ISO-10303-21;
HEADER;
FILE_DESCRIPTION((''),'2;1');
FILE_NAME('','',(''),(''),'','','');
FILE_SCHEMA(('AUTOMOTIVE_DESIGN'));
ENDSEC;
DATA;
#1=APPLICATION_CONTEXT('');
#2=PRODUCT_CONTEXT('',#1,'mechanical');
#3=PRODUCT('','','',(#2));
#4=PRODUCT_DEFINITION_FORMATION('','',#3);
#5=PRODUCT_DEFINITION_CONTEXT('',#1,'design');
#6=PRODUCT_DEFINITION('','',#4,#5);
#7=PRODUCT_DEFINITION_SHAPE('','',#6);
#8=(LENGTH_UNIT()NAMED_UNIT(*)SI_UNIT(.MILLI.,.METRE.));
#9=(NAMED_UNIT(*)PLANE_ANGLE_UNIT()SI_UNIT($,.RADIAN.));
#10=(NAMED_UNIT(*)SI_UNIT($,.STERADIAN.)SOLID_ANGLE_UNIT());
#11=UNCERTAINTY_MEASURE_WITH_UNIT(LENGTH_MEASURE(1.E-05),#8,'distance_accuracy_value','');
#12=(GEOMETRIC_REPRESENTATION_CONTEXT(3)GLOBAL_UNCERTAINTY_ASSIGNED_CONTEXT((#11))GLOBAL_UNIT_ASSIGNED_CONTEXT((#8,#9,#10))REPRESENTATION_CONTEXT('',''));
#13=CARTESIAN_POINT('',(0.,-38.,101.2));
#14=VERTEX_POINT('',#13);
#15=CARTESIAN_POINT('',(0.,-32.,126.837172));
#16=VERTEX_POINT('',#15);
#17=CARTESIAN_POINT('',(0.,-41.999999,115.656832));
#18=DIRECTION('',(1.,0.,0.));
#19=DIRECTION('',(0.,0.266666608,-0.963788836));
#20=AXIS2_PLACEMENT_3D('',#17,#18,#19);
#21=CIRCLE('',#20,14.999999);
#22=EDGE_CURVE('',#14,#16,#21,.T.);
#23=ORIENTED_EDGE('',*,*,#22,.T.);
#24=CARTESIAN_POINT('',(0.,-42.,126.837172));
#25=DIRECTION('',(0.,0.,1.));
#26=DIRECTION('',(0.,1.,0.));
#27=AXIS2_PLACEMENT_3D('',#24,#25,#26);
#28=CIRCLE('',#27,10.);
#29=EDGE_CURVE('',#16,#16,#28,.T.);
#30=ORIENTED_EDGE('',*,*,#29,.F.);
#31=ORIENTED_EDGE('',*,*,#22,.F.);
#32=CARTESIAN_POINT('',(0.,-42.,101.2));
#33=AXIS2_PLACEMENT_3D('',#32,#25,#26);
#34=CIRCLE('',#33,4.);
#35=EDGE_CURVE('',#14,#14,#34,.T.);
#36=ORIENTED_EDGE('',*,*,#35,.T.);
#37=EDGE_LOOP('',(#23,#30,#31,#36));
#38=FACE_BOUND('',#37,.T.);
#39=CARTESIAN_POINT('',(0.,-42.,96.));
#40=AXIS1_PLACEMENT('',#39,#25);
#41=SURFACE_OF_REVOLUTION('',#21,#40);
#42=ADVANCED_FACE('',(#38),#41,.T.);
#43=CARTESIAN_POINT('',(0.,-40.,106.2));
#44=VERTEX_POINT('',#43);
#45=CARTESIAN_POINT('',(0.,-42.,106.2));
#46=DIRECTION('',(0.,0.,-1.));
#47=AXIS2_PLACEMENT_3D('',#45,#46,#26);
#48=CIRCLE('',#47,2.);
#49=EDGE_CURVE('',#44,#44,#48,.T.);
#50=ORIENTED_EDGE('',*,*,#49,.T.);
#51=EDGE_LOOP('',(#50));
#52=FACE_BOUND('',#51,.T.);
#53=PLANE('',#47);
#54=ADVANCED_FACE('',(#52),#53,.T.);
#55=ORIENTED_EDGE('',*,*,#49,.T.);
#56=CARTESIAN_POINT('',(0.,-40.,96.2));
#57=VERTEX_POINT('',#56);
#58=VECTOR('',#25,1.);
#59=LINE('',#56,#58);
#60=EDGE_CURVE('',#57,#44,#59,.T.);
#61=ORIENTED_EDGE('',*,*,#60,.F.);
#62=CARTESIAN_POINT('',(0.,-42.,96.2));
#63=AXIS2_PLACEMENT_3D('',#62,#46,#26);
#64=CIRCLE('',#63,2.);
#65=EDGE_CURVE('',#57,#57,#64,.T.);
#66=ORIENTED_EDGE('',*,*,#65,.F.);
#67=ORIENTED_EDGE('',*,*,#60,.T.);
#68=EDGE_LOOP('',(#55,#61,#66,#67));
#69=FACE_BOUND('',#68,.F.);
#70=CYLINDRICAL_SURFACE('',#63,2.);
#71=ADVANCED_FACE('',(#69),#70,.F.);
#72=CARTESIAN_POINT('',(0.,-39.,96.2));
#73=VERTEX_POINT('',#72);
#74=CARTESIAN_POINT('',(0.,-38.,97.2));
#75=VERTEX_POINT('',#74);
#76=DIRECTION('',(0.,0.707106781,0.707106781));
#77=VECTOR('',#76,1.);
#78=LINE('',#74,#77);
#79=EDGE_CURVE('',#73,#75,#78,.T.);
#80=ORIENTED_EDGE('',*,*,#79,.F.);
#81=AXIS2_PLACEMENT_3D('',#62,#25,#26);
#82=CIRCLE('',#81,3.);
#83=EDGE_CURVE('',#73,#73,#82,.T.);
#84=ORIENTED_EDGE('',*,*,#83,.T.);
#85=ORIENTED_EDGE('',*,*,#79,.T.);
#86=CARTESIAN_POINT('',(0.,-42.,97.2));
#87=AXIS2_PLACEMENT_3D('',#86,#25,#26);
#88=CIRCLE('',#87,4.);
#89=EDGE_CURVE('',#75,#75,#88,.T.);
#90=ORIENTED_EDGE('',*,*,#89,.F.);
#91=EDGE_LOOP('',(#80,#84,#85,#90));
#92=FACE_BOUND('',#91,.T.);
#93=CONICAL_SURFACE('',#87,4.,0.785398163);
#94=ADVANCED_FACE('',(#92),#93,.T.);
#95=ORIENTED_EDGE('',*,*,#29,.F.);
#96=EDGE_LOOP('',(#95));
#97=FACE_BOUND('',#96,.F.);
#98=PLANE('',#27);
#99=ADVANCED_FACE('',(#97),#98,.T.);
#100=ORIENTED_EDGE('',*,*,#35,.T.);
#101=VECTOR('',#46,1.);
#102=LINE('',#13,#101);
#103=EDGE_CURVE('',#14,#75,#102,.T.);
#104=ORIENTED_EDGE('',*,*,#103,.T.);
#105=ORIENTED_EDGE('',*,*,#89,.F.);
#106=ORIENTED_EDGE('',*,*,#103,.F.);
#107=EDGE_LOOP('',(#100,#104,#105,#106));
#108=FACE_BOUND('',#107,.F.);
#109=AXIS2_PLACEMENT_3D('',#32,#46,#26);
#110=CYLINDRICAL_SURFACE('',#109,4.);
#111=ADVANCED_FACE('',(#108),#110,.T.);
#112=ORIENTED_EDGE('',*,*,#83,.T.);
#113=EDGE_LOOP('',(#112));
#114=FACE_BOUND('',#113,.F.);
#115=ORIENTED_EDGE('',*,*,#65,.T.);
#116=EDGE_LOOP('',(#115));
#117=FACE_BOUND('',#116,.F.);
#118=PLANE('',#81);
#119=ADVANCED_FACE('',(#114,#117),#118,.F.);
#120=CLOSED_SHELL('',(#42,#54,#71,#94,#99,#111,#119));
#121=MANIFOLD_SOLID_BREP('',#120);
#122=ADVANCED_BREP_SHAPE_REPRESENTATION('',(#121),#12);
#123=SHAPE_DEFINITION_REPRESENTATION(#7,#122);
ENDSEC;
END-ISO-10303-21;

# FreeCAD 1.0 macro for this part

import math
import FreeCAD as App
import Part
import Sketcher

V = App.Vector
Q = App.Units.Quantity


def edges_at(feature, points):
    """Names of the edges that pass closest to the given points."""
    edges = feature.Shape.Edges
    near = lambda p: min(range(len(edges)), key=lambda i: edges[i].distToShape(Part.Vertex(*p))[0])
    return sorted({f"Edge{near(p) + 1}" for p in points})

doc = App.newDocument("Part")
body = doc.addObject("PartDesign::Body", "Body")

# Sketch on YZ plane
sketch1 = body.newObject("Sketcher::SketchObject", "Sketch")
sketch1.AttachmentSupport = (doc.getObject("YZ_Plane"), [""])
sketch1.MapMode = "FlatFace"
sketch1.addGeometry([
    Part.ArcOfCircle(Part.Circle(V(-42, 115.7, 0), V(0, 0, 1), 15), math.radians(-75), math.radians(48)),  # 0
    Part.LineSegment(V(-32, 126.8, 0), V(-42, 126.8, 0)),  # 1
    Part.LineSegment(V(-42, 126.8, 0), V(-42, 96.2, 0)),  # 2
    Part.LineSegment(V(-42, 96.2, 0), V(-38, 96.2, 0)),  # 3
    Part.LineSegment(V(-38, 96.2, 0), V(-38, 101.2, 0)),  # 4
], False)
sketch1.addGeometry(Part.LineSegment(V(-42, 96.2, 0), V(-42, 126.8, 0)), True)  # axis
sketch1.addConstraint([
    Sketcher.Constraint("Coincident", 0, 2, 1, 1),
    Sketcher.Constraint("Coincident", 1, 2, 2, 1),
    Sketcher.Constraint("Coincident", 2, 2, 3, 1),
    Sketcher.Constraint("Coincident", 3, 2, 4, 1),
    Sketcher.Constraint("Coincident", 4, 2, 0, 1),
    Sketcher.Constraint("Horizontal", 1),
    Sketcher.Constraint("Vertical", 2),
    Sketcher.Constraint("Horizontal", 3),
    Sketcher.Constraint("Vertical", 4),
    Sketcher.Constraint("Vertical", 5),
    Sketcher.Constraint("Coincident", 5, 1, 2, 2),
    Sketcher.Constraint("Horizontal", 0, 2, 5, 2),
    Sketcher.Constraint("Vertical", 0, 3, 1, 2),
    Sketcher.Constraint("Radius", 0, Q("14.999999 mm")),
    Sketcher.Constraint("DistanceX", 1, 2, 1, 1, Q("10 mm")),
    Sketcher.Constraint("DistanceX", 3, 1, 3, 2, Q("4 mm")),
    Sketcher.Constraint("DistanceY", 4, 1, 4, 2, Q("5 mm")),
    Sketcher.Constraint("DistanceX", 0, 3, -1, 1, Q("41.999999 mm")),
    Sketcher.Constraint("DistanceY", -1, 1, 2, 2, Q("96.2 mm")),
])
revolution = body.newObject("PartDesign::Revolution", "Revolution")
revolution.Profile = sketch1
revolution.ReferenceAxis = (sketch1, ["Axis0"])
revolution.Angle = 360
doc.recompute()

chamfer = body.newObject("PartDesign::Chamfer", "Chamfer")
chamfer.Base = (revolution, edges_at(revolution, [(0, -46, 96.2)]))
chamfer.Size = 1

# Sketch on XY plane
sketch2 = body.newObject("Sketcher::SketchObject", "Sketch001")
sketch2.AttachmentSupport = (doc.getObject("XY_Plane"), [""])
sketch2.MapMode = "FlatFace"
sketch2.AttachmentOffset = App.Placement(V(0, 0, 96.2), App.Rotation())
sketch2.addGeometry(Part.Circle(V(0, -42, 0), V(0, 0, 1), 2), False)
sketch2.addConstraint([
    Sketcher.Constraint("PointOnObject", 0, 3, -2),
    Sketcher.Constraint("Diameter", 0, Q("4 mm")),
    Sketcher.Constraint("DistanceY", 0, 3, -1, 1, Q("42 mm")),
])
pocket1 = body.newObject("PartDesign::Pocket", "Pocket")
pocket1.Profile = sketch2
pocket1.Length = 10
pocket1.Reversed = True

doc.recompute()
